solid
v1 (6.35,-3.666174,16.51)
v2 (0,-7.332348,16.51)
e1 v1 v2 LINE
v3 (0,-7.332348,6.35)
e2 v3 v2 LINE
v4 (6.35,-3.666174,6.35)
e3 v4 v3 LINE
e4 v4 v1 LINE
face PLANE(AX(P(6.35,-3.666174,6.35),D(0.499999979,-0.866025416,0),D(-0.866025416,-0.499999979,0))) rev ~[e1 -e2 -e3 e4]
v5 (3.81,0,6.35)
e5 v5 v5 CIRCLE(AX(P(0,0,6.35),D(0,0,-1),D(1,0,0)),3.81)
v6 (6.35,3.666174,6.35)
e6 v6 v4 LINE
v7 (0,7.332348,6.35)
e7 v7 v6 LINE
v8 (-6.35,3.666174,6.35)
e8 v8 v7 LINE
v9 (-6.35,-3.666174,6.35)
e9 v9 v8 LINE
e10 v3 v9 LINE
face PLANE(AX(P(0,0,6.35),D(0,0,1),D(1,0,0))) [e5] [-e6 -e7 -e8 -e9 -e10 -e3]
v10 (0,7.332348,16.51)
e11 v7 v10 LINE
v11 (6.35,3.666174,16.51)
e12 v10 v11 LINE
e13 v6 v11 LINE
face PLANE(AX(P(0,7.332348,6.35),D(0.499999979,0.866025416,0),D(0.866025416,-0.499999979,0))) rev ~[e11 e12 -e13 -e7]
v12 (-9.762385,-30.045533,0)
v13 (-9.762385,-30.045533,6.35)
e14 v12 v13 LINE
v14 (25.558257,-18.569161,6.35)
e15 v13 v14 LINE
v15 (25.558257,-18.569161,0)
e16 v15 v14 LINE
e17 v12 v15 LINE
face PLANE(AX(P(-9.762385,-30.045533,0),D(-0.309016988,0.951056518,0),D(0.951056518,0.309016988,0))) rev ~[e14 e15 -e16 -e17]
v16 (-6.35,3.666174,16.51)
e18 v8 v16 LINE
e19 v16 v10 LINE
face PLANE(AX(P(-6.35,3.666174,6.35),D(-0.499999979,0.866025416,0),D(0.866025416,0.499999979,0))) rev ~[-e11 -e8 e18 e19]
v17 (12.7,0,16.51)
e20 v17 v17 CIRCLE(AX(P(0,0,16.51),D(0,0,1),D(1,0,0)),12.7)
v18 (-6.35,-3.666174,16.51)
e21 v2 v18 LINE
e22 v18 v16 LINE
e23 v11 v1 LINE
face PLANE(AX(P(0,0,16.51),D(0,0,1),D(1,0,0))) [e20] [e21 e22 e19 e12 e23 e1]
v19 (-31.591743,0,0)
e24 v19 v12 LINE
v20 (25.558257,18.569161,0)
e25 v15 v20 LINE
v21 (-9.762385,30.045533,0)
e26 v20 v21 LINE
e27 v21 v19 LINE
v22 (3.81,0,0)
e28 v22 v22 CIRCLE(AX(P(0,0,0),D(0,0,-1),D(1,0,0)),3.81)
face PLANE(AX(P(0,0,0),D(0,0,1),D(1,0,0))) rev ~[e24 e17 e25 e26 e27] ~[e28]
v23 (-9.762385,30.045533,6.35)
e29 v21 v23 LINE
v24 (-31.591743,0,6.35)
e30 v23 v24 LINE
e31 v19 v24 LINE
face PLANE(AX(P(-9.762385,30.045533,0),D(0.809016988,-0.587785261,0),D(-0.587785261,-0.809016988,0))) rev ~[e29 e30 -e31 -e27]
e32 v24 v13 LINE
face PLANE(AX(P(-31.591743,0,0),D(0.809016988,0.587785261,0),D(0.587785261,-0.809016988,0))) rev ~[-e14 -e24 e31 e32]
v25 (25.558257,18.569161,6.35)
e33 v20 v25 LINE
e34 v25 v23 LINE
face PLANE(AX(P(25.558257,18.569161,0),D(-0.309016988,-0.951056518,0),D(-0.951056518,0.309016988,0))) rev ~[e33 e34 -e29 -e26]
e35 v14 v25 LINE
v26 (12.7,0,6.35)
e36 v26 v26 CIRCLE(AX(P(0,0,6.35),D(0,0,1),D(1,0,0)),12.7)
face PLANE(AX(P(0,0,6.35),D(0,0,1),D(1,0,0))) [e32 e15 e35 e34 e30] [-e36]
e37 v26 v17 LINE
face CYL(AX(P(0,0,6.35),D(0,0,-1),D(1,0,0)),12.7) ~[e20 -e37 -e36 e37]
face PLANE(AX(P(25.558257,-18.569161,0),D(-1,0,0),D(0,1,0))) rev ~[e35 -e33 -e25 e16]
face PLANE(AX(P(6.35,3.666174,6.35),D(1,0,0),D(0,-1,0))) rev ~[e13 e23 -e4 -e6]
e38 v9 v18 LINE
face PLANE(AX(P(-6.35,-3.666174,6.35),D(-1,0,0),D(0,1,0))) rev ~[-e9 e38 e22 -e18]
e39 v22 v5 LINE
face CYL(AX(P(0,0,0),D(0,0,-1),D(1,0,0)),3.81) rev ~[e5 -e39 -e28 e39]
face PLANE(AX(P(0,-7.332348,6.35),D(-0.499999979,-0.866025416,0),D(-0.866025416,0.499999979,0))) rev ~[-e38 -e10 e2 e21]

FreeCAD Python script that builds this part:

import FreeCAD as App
import Part
import Sketcher

V = App.Vector
Q = App.Units.Quantity

doc = App.newDocument("Part")
params = doc.addObject("Spreadsheet::Sheet", "Params")
for row, (alias, value) in enumerate([
    ("pad1_length", "0.25 in"),
    ("sketch2_diameter", "1 in"),
    ("pad2_length", "0.4 in"),
    ("sketch3_diameter", "0.3 in"),
    ("pocket1_length", "1 in"),
], start=1):
    params.set(f"A{row}", alias)
    params.set(f"B{row}", "=" + value)
    params.setAlias(f"B{row}", alias)

body = doc.addObject("PartDesign::Body", "Body")

# Sketch on XY plane
sketch1 = body.newObject("Sketcher::SketchObject", "Sketch")
sketch1.AttachmentSupport = (doc.getObject("XY_Plane"), [""])
sketch1.MapMode = "FlatFace"
sketch1.addGeometry([
    Part.LineSegment(V(26, -19, 0), V(26, 19, 0)),  # 0
    Part.LineSegment(V(26, 19, 0), V(-10, 30, 0)),  # 1
    Part.LineSegment(V(-10, 30, 0), V(-32, 0, 0)),  # 2
    Part.LineSegment(V(-32, 0, 0), V(-10, -30, 0)),  # 3
    Part.LineSegment(V(-10, -30, 0), V(26, -19, 0)),  # 4
], False)
sketch1.addConstraint([
    Sketcher.Constraint("Coincident", 0, 2, 1, 1),
    Sketcher.Constraint("Coincident", 1, 2, 2, 1),
    Sketcher.Constraint("Coincident", 2, 2, 3, 1),
    Sketcher.Constraint("Coincident", 3, 2, 4, 1),
    Sketcher.Constraint("Coincident", 4, 2, 0, 1),
    Sketcher.Constraint("Vertical", 0),
    Sketcher.Constraint("Symmetric", 1, 2, 3, 2, -1),
    Sketcher.Constraint("PointOnObject", 2, 2, -1),
    Sketcher.Constraint("Equal", 1, 2),
    Sketcher.Constraint("Equal", 3, 4),
    Sketcher.Constraint("Angle", 1, Q("162 deg")),
    Sketcher.Constraint("Angle", 2, Q("-126.000001 deg")),
    Sketcher.Constraint("DistanceX", 2, 2, 0, 2, Q("2.25 in")),
    Sketcher.Constraint("DistanceX", -1, 1, 0, 2, 25.558257),
])
pad1 = body.newObject("PartDesign::Pad", "Pad")
pad1.Profile = sketch1
pad1.setExpression("Length", "Params.pad1_length")

# Sketch on XY plane
sketch2 = body.newObject("Sketcher::SketchObject", "Sketch001")
sketch2.AttachmentSupport = (doc.getObject("XY_Plane"), [""])
sketch2.MapMode = "FlatFace"
sketch2.AttachmentOffset = App.Placement(V(0, 0, 0.25 * 25.4), App.Rotation())
sketch2.addGeometry([
    Part.Circle(V(0, 0, 0), V(0, 0, 1), 13),  # 0
    Part.LineSegment(V(-6, 4, 0), V(0, 7, 0)),  # 1
    Part.LineSegment(V(0, 7, 0), V(6, 4, 0)),  # 2
    Part.LineSegment(V(6, 4, 0), V(6, -4, 0)),  # 3
    Part.LineSegment(V(6, -4, 0), V(0, -7, 0)),  # 4
    Part.LineSegment(V(0, -7, 0), V(-6, -4, 0)),  # 5
    Part.LineSegment(V(-6, -4, 0), V(-6, 4, 0)),  # 6
], False)
sketch2.addConstraint([
    Sketcher.Constraint("Coincident", 1, 2, 2, 1),
    Sketcher.Constraint("Coincident", 2, 2, 3, 1),
    Sketcher.Constraint("Coincident", 3, 2, 4, 1),
    Sketcher.Constraint("Coincident", 4, 2, 5, 1),
    Sketcher.Constraint("Coincident", 5, 2, 6, 1),
    Sketcher.Constraint("Coincident", 6, 2, 1, 1),
    Sketcher.Constraint("Vertical", 3),
    Sketcher.Constraint("Vertical", 6),
    Sketcher.Constraint("Coincident", 0, 3, -1, 1),
    Sketcher.Constraint("Symmetric", 1, 2, 4, 2, -1, 1),
    Sketcher.Constraint("Symmetric", 2, 2, 5, 2, -1, 1),
    Sketcher.Constraint("PointOnObject", 1, 2, -2),
    Sketcher.Constraint("Parallel", 1, 4),
    Sketcher.Constraint("Horizontal", 3, 2, 5, 2),
    Sketcher.Constraint("Diameter", 0, Q("1 in")),
    Sketcher.Constraint("Angle", 1, Q("29.999999 deg")),
    Sketcher.Constraint("DistanceX", 5, 2, 3, 2, Q("0.5 in")),
    Sketcher.Constraint("DistanceY", 3, 2, 3, 1, 7.332348),
])
sketch2.setExpression("Constraints[14]", "Params.sketch2_diameter")
pad2 = body.newObject("PartDesign::Pad", "Pad001")
pad2.Profile = sketch2
pad2.setExpression("Length", "Params.pad2_length")

# Sketch on XY plane
sketch3 = body.newObject("Sketcher::SketchObject", "Sketch002")
sketch3.AttachmentSupport = (doc.getObject("XY_Plane"), [""])
sketch3.MapMode = "FlatFace"
sketch3.addGeometry(Part.Circle(V(0, 0, 0), V(0, 0, 1), 3.8), False)
sketch3.addConstraint([
    Sketcher.Constraint("Coincident", 0, 3, -1, 1),
    Sketcher.Constraint("Diameter", 0, Q("0.3 in")),
])
sketch3.setExpression("Constraints[1]", "Params.sketch3_diameter")
pocket1 = body.newObject("PartDesign::Pocket", "Pocket")
pocket1.Profile = sketch3
pocket1.setExpression("Length", "Params.pocket1_length")
pocket1.Reversed = True

doc.recompute()
